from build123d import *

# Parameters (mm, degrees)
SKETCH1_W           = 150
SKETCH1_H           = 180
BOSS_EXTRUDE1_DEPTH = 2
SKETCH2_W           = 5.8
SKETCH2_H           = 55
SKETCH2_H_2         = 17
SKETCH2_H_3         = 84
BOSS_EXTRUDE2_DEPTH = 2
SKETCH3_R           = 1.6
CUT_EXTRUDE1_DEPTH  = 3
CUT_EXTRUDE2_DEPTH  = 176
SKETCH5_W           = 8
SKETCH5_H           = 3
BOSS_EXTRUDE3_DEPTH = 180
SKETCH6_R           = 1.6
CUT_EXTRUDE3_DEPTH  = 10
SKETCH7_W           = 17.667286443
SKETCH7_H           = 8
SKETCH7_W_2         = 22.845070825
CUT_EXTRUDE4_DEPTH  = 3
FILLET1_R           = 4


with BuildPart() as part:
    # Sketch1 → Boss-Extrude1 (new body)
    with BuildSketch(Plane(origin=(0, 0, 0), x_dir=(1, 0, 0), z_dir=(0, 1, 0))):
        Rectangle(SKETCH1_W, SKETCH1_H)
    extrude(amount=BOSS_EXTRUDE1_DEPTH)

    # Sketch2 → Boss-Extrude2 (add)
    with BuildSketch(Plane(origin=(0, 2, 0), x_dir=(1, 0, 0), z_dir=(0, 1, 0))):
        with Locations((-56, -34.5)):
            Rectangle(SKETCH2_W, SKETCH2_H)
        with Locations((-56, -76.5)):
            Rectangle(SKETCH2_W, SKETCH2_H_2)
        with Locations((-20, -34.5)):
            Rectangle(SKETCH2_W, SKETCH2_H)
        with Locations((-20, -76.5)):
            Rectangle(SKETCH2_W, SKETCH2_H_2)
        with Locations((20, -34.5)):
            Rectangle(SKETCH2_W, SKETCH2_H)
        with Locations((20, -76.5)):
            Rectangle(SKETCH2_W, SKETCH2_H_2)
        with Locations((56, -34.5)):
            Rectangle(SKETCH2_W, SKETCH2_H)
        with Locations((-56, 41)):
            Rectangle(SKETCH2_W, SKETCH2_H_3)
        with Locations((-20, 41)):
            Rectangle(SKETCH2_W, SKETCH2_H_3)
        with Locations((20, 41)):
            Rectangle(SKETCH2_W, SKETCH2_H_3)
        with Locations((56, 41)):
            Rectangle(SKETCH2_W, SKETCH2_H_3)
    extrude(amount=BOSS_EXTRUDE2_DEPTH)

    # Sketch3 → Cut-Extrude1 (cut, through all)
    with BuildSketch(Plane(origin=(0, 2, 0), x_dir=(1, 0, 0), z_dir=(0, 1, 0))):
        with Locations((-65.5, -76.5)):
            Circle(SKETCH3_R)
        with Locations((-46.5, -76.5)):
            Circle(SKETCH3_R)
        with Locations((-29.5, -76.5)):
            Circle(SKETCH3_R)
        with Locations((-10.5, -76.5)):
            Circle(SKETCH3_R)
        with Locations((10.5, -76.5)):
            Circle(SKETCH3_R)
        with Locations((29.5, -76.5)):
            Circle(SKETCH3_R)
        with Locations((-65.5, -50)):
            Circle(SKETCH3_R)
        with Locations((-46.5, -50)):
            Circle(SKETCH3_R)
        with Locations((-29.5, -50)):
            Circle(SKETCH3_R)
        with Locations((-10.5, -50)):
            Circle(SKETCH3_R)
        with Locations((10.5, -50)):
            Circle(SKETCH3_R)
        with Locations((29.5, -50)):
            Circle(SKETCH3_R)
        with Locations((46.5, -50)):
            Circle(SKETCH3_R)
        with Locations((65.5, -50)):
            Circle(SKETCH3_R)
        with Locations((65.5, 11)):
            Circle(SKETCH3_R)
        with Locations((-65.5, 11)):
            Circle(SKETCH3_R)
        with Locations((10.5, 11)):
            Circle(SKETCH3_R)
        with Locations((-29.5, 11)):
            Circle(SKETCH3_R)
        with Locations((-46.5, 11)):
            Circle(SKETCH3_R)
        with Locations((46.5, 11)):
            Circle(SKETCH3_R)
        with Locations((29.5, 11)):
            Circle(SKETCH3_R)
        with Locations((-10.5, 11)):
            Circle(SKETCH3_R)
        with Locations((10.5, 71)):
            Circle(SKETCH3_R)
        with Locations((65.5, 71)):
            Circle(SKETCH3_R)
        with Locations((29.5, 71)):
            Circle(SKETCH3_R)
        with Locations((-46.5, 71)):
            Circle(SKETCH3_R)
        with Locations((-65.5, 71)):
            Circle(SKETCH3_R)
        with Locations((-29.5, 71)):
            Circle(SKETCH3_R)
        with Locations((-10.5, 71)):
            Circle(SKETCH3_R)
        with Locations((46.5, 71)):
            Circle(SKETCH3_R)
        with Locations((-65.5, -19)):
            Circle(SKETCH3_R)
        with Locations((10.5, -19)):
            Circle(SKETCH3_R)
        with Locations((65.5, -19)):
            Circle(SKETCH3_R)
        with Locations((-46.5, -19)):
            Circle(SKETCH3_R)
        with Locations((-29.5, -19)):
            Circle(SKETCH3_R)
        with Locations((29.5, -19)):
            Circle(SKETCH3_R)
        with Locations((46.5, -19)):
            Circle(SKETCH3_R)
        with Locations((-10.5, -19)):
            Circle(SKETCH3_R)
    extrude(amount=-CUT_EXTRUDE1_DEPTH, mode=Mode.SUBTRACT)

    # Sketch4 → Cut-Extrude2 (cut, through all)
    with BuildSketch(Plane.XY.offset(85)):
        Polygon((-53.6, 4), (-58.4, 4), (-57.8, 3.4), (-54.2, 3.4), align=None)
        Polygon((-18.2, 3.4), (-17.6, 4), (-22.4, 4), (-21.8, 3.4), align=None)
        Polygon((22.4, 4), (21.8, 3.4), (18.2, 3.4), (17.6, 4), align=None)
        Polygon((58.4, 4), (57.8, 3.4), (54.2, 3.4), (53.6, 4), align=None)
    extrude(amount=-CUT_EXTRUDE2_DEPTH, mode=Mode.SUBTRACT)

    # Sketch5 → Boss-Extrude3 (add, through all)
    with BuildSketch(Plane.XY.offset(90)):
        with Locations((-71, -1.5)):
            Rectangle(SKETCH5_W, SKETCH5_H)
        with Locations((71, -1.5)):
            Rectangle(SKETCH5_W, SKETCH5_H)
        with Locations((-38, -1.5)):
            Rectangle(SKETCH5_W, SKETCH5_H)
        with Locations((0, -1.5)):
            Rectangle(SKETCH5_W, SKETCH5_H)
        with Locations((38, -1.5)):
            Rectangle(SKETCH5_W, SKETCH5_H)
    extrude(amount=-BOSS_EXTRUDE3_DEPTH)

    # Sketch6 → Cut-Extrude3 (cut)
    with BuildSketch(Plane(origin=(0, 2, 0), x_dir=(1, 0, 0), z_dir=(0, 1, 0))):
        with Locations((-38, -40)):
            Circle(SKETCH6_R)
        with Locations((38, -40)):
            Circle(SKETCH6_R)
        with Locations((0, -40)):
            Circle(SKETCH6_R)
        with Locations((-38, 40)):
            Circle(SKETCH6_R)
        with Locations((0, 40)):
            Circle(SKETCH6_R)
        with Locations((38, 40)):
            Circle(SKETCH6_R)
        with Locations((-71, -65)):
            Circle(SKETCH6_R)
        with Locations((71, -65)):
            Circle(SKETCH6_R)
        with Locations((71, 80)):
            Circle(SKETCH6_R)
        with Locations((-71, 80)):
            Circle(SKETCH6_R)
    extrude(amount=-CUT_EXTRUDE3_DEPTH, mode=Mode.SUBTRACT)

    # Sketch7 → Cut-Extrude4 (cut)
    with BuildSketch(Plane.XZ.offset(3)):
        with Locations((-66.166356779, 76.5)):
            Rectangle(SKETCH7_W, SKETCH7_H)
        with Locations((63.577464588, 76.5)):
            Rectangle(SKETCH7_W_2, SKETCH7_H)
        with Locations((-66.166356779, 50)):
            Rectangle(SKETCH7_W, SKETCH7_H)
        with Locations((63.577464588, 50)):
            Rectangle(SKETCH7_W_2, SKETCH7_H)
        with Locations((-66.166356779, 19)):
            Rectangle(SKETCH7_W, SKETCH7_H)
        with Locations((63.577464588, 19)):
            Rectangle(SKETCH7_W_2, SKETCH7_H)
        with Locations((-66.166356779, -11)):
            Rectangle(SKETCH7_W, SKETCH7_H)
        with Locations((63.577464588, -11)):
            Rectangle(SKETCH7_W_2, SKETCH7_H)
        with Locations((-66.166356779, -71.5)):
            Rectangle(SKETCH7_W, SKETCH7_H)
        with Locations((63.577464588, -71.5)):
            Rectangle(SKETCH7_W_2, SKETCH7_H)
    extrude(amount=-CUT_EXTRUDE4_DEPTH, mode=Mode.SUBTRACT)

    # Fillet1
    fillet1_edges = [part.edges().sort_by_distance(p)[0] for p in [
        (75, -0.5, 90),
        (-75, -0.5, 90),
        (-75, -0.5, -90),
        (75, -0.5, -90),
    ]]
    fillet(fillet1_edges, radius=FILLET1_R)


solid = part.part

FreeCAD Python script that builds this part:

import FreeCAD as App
import Part
import Sketcher

V = App.Vector


def edges_at(feature, points):
    """Names of the edges that pass closest to the given points."""
    edges = feature.Shape.Edges
    near = lambda p: min(range(len(edges)), key=lambda i: edges[i].distToShape(Part.Vertex(*p))[0])
    return sorted({f"Edge{near(p) + 1}" for p in points})

doc = App.newDocument("Part")
body = doc.addObject("PartDesign::Body", "Body")

sketch1 = doc.addObject("Sketcher::SketchObject", "Sketch")
body.addObject(sketch1)
sketch1.AttachmentSupport = (doc.XZ_Plane, [""])
sketch1.MapMode = "FlatFace"
sketch1.addGeometry([
    Part.LineSegment(V(-75, -90, 0), V(-75, 90, 0)),
    Part.LineSegment(V(-75, 90, 0), V(75, 90, 0)),
    Part.LineSegment(V(75, 90, 0), V(75, -90, 0)),
    Part.LineSegment(V(75, -90, 0), V(-75, -90, 0)),
], False)
sketch1.addConstraint([
    Sketcher.Constraint("Coincident", 0, 2, 1, 1),
    Sketcher.Constraint("Coincident", 1, 2, 2, 1),
    Sketcher.Constraint("Coincident", 2, 2, 3, 1),
    Sketcher.Constraint("Coincident", 3, 2, 0, 1),
    Sketcher.Constraint("Vertical", 0),
    Sketcher.Constraint("Horizontal", 1),
    Sketcher.Constraint("Vertical", 2),
    Sketcher.Constraint("Horizontal", 3),
    Sketcher.Constraint("Symmetric", 0, 2, 2, 2, -1, 1),
    Sketcher.Constraint("DistanceX", 1, 1, 1, 2, 150.0),
    Sketcher.Constraint("DistanceY", 0, 1, 0, 2, 180.0),
])
pad1 = doc.addObject("PartDesign::Pad", "Pad")
body.addObject(pad1)
pad1.Profile = sketch1
pad1.Length = 2
pad1.Reversed = True

sketch2 = doc.addObject("Sketcher::SketchObject", "Sketch001")
body.addObject(sketch2)
sketch2.AttachmentSupport = (doc.XZ_Plane, [""])
sketch2.MapMode = "FlatFace"
sketch2.AttachmentOffset = App.Placement(V(0, 0, -2), App.Rotation())
sketch2.addGeometry([
    Part.LineSegment(V(-59, 7, 0), V(-59, 62, 0)),
    Part.LineSegment(V(-59, 62, 0), V(-53, 62, 0)),
    Part.LineSegment(V(-53, 62, 0), V(-53, 7, 0)),
    Part.LineSegment(V(-53, 7, 0), V(-59, 7, 0)),
    Part.LineSegment(V(-59, 68, 0), V(-59, 85, 0)),
    Part.LineSegment(V(-59, 85, 0), V(-53, 85, 0)),
    Part.LineSegment(V(-53, 85, 0), V(-53, 68, 0)),
    Part.LineSegment(V(-53, 68, 0), V(-59, 68, 0)),
    Part.LineSegment(V(-23, 7, 0), V(-23, 62, 0)),
    Part.LineSegment(V(-23, 62, 0), V(-17, 62, 0)),
    Part.LineSegment(V(-17, 62, 0), V(-17, 7, 0)),
    Part.LineSegment(V(-17, 7, 0), V(-23, 7, 0)),
    Part.LineSegment(V(-23, 68, 0), V(-23, 85, 0)),
    Part.LineSegment(V(-23, 85, 0), V(-17, 85, 0)),
    Part.LineSegment(V(-17, 85, 0), V(-17, 68, 0)),
    Part.LineSegment(V(-17, 68, 0), V(-23, 68, 0)),
    Part.LineSegment(V(17, 7, 0), V(17, 62, 0)),
    Part.LineSegment(V(17, 62, 0), V(23, 62, 0)),
    Part.LineSegment(V(23, 62, 0), V(23, 7, 0)),
    Part.LineSegment(V(23, 7, 0), V(17, 7, 0)),
    Part.LineSegment(V(17, 68, 0), V(17, 85, 0)),
    Part.LineSegment(V(17, 85, 0), V(23, 85, 0)),
    Part.LineSegment(V(23, 85, 0), V(23, 68, 0)),
    Part.LineSegment(V(23, 68, 0), V(17, 68, 0)),
    Part.LineSegment(V(53, 7, 0), V(53, 62, 0)),
    Part.LineSegment(V(53, 62, 0), V(59, 62, 0)),
    Part.LineSegment(V(59, 62, 0), V(59, 7, 0)),
    Part.LineSegment(V(59, 7, 0), V(53, 7, 0)),
    Part.LineSegment(V(-59, -83, 0), V(-59, 1, 0)),
    Part.LineSegment(V(-59, 1, 0), V(-53, 1, 0)),
    Part.LineSegment(V(-53, 1, 0), V(-53, -83, 0)),
    Part.LineSegment(V(-53, -83, 0), V(-59, -83, 0)),
    Part.LineSegment(V(-23, -83, 0), V(-23, 1, 0)),
    Part.LineSegment(V(-23, 1, 0), V(-17, 1, 0)),
    Part.LineSegment(V(-17, 1, 0), V(-17, -83, 0)),
    Part.LineSegment(V(-17, -83, 0), V(-23, -83, 0)),
    Part.LineSegment(V(17, -83, 0), V(17, 1, 0)),
    Part.LineSegment(V(17, 1, 0), V(23, 1, 0)),
    Part.LineSegment(V(23, 1, 0), V(23, -83, 0)),
    Part.LineSegment(V(23, -83, 0), V(17, -83, 0)),
    Part.LineSegment(V(53, -83, 0), V(53, 1, 0)),
    Part.LineSegment(V(53, 1, 0), V(59, 1, 0)),
    Part.LineSegment(V(59, 1, 0), V(59, -83, 0)),
    Part.LineSegment(V(59, -83, 0), V(53, -83, 0)),
], False)
sketch2.addConstraint([
    Sketcher.Constraint("Coincident", 0, 2, 1, 1),
    Sketcher.Constraint("Coincident", 1, 2, 2, 1),
    Sketcher.Constraint("Coincident", 2, 2, 3, 1),
    Sketcher.Constraint("Coincident", 3, 2, 0, 1),
    Sketcher.Constraint("Coincident", 4, 2, 5, 1),
    Sketcher.Constraint("Coincident", 5, 2, 6, 1),
    Sketcher.Constraint("Coincident", 6, 2, 7, 1),
    Sketcher.Constraint("Coincident", 7, 2, 4, 1),
    Sketcher.Constraint("Coincident", 8, 2, 9, 1),
    Sketcher.Constraint("Coincident", 9, 2, 10, 1),
    Sketcher.Constraint("Coincident", 10, 2, 11, 1),
    Sketcher.Constraint("Coincident", 11, 2, 8, 1),
    Sketcher.Constraint("Coincident", 12, 2, 13, 1),
    Sketcher.Constraint("Coincident", 13, 2, 14, 1),
    Sketcher.Constraint("Coincident", 14, 2, 15, 1),
    Sketcher.Constraint("Coincident", 15, 2, 12, 1),
    Sketcher.Constraint("Coincident", 16, 2, 17, 1),
    Sketcher.Constraint("Coincident", 17, 2, 18, 1),
    Sketcher.Constraint("Coincident", 18, 2, 19, 1),
    Sketcher.Constraint("Coincident", 19, 2, 16, 1),
    Sketcher.Constraint("Coincident", 20, 2, 21, 1),
    Sketcher.Constraint("Coincident", 21, 2, 22, 1),
    Sketcher.Constraint("Coincident", 22, 2, 23, 1),
    Sketcher.Constraint("Coincident", 23, 2, 20, 1),
    Sketcher.Constraint("Coincident", 24, 2, 25, 1),
    Sketcher.Constraint("Coincident", 25, 2, 26, 1),
    Sketcher.Constraint("Coincident", 26, 2, 27, 1),
    Sketcher.Constraint("Coincident", 27, 2, 24, 1),
    Sketcher.Constraint("Coincident", 28, 2, 29, 1),
    Sketcher.Constraint("Coincident", 29, 2, 30, 1),
    Sketcher.Constraint("Coincident", 30, 2, 31, 1),
    Sketcher.Constraint("Coincident", 31, 2, 28, 1),
    Sketcher.Constraint("Coincident", 32, 2, 33, 1),
    Sketcher.Constraint("Coincident", 33, 2, 34, 1),
    Sketcher.Constraint("Coincident", 34, 2, 35, 1),
    Sketcher.Constraint("Coincident", 35, 2, 32, 1),
    Sketcher.Constraint("Coincident", 36, 2, 37, 1),
    Sketcher.Constraint("Coincident", 37, 2, 38, 1),
    Sketcher.Constraint("Coincident", 38, 2, 39, 1),
    Sketcher.Constraint("Coincident", 39, 2, 36, 1),
    Sketcher.Constraint("Coincident", 40, 2, 41, 1),
    Sketcher.Constraint("Coincident", 41, 2, 42, 1),
    Sketcher.Constraint("Coincident", 42, 2, 43, 1),
    Sketcher.Constraint("Coincident", 43, 2, 40, 1),
    Sketcher.Constraint("Vertical", 0),
    Sketcher.Constraint("Horizontal", 1),
    Sketcher.Constraint("Vertical", 2),
    Sketcher.Constraint("Horizontal", 3),
    Sketcher.Constraint("Vertical", 4),
    Sketcher.Constraint("Horizontal", 5),
    Sketcher.Constraint("Vertical", 6),
    Sketcher.Constraint("Horizontal", 7),
    Sketcher.Constraint("Vertical", 8),
    Sketcher.Constraint("Horizontal", 9),
    Sketcher.Constraint("Vertical", 10),
    Sketcher.Constraint("Horizontal", 11),
    Sketcher.Constraint("Vertical", 12),
    Sketcher.Constraint("Horizontal", 13),
    Sketcher.Constraint("Vertical", 14),
    Sketcher.Constraint("Horizontal", 15),
    Sketcher.Constraint("Vertical", 16),
    Sketcher.Constraint("Horizontal", 17),
    Sketcher.Constraint("Vertical", 18),
    Sketcher.Constraint("Horizontal", 19),
    Sketcher.Constraint("Vertical", 20),
    Sketcher.Constraint("Horizontal", 21),
    Sketcher.Constraint("Vertical", 22),
    Sketcher.Constraint("Horizontal", 23),
    Sketcher.Constraint("Vertical", 24),
    Sketcher.Constraint("Horizontal", 25),
    Sketcher.Constraint("Vertical", 26),
    Sketcher.Constraint("Horizontal", 27),
    Sketcher.Constraint("Vertical", 28),
    Sketcher.Constraint("Horizontal", 29),
    Sketcher.Constraint("Vertical", 30),
    Sketcher.Constraint("Horizontal", 31),
    Sketcher.Constraint("Vertical", 32),
    Sketcher.Constraint("Horizontal", 33),
    Sketcher.Constraint("Vertical", 34),
    Sketcher.Constraint("Horizontal", 35),
    Sketcher.Constraint("Vertical", 36),
    Sketcher.Constraint("Horizontal", 37),
    Sketcher.Constraint("Vertical", 38),
    Sketcher.Constraint("Horizontal", 39),
    Sketcher.Constraint("Vertical", 40),
    Sketcher.Constraint("Horizontal", 41),
    Sketcher.Constraint("Vertical", 42),
    Sketcher.Constraint("Horizontal", 43),
    Sketcher.Constraint("Symmetric", 9, 2, 16, 2, -2),
    Sketcher.Constraint("Symmetric", 11, 2, 18, 2, -2),
    Sketcher.Constraint("Symmetric", 13, 2, 20, 2, -2),
    Sketcher.Constraint("Symmetric", 15, 2, 22, 2, -2),
    Sketcher.Constraint("Symmetric", 1, 2, 24, 2, -2),
    Sketcher.Constraint("Symmetric", 3, 2, 26, 2, -2),
    Sketcher.Constraint("Symmetric", 33, 2, 36, 2, -2),
    Sketcher.Constraint("Symmetric", 35, 2, 38, 2, -2),
    Sketcher.Constraint("Symmetric", 29, 2, 40, 2, -2),
    Sketcher.Constraint("Symmetric", 31, 2, 42, 2, -2),
    Sketcher.Constraint("Horizontal", 1, 2, 8, 2),
    Sketcher.Constraint("Horizontal", 3, 2, 10, 2),
    Sketcher.Constraint("Horizontal", 5, 2, 12, 2),
    Sketcher.Constraint("Horizontal", 7, 2, 14, 2),
    Sketcher.Constraint("Horizontal", 29, 2, 32, 2),
    Sketcher.Constraint("Horizontal", 31, 2, 34, 2),
    Sketcher.Constraint("Vertical", 3, 2, 4, 2),
    Sketcher.Constraint("Vertical", 2, 2, 5, 2),
    Sketcher.Constraint("Vertical", 11, 2, 12, 2),
    Sketcher.Constraint("Vertical", 10, 2, 13, 2),
    Sketcher.Constraint("Vertical", 7, 2, 28, 2),
    Sketcher.Constraint("Vertical", 6, 2, 29, 2),
    Sketcher.Constraint("Vertical", 15, 2, 32, 2),
    Sketcher.Constraint("Vertical", 14, 2, 33, 2),
    Sketcher.Constraint("Equal", 7, 9),
    Sketcher.Constraint("DistanceY", 0, 1, 0, 2, 55.0),
    Sketcher.Constraint("DistanceY", 4, 1, 4, 2, 17.0),
    Sketcher.Constraint("DistanceY", 28, 1, 28, 2, 84.0),
    Sketcher.Constraint("DistanceX", 1, 1, 1, 2, 5.8),
    Sketcher.Constraint("DistanceY", -1, 1, 0, 2, 62.0),
    Sketcher.Constraint("DistanceY", -1, 1, 4, 2, 85.0),
    Sketcher.Constraint("DistanceY", -1, 1, 28, 2, 1.0),
    Sketcher.Constraint("DistanceX", 0, 2, 8, 2, 36.0),
    Sketcher.Constraint("DistanceX", 8, 2, 16, 2, 40.0),
])
pad2 = doc.addObject("PartDesign::Pad", "Pad001")
body.addObject(pad2)
pad2.Profile = sketch2
pad2.Length = 2
pad2.Reversed = True

sketch3 = doc.addObject("Sketcher::SketchObject", "Sketch002")
body.addObject(sketch3)
sketch3.AttachmentSupport = (doc.XZ_Plane, [""])
sketch3.MapMode = "FlatFace"
sketch3.AttachmentOffset = App.Placement(V(0, 0, -2), App.Rotation())
sketch3.addGeometry([
    Part.Circle(V(-65.5, 76.5, 0), V(0, 0, 1), 1.6),
    Part.Circle(V(-46.5, 76.5, 0), V(0, 0, 1), 1.6),
    Part.Circle(V(-29.5, 76.5, 0), V(0, 0, 1), 1.6),
    Part.Circle(V(-10.5, 76.5, 0), V(0, 0, 1), 1.6),
    Part.Circle(V(10.5, 76.5, 0), V(0, 0, 1), 1.6),
    Part.Circle(V(29.5, 76.5, 0), V(0, 0, 1), 1.6),
    Part.Circle(V(-65.5, 50, 0), V(0, 0, 1), 1.6),
    Part.Circle(V(-46.5, 50, 0), V(0, 0, 1), 1.6),
    Part.Circle(V(-29.5, 50, 0), V(0, 0, 1), 1.6),
    Part.Circle(V(-10.5, 50, 0), V(0, 0, 1), 1.6),
    Part.Circle(V(10.5, 50, 0), V(0, 0, 1), 1.6),
    Part.Circle(V(29.5, 50, 0), V(0, 0, 1), 1.6),
    Part.Circle(V(46.5, 50, 0), V(0, 0, 1), 1.6),
    Part.Circle(V(65.5, 50, 0), V(0, 0, 1), 1.6),
    Part.Circle(V(65.5, -11, 0), V(0, 0, 1), 1.6),
    Part.Circle(V(-65.5, -11, 0), V(0, 0, 1), 1.6),
    Part.Circle(V(10.5, -11, 0), V(0, 0, 1), 1.6),
    Part.Circle(V(-29.5, -11, 0), V(0, 0, 1), 1.6),
    Part.Circle(V(-46.5, -11, 0), V(0, 0, 1), 1.6),
    Part.Circle(V(46.5, -11, 0), V(0, 0, 1), 1.6),
    Part.Circle(V(29.5, -11, 0), V(0, 0, 1), 1.6),
    Part.Circle(V(-10.5, -11, 0), V(0, 0, 1), 1.6),
    Part.Circle(V(10.5, -71, 0), V(0, 0, 1), 1.6),
    Part.Circle(V(65.5, -71, 0), V(0, 0, 1), 1.6),
    Part.Circle(V(29.5, -71, 0), V(0, 0, 1), 1.6),
    Part.Circle(V(-46.5, -71, 0), V(0, 0, 1), 1.6),
    Part.Circle(V(-65.5, -71, 0), V(0, 0, 1), 1.6),
    Part.Circle(V(-29.5, -71, 0), V(0, 0, 1), 1.6),
    Part.Circle(V(-10.5, -71, 0), V(0, 0, 1), 1.6),
    Part.Circle(V(46.5, -71, 0), V(0, 0, 1), 1.6),
    Part.Circle(V(-65.5, 19, 0), V(0, 0, 1), 1.6),
    Part.Circle(V(10.5, 19, 0), V(0, 0, 1), 1.6),
    Part.Circle(V(65.5, 19, 0), V(0, 0, 1), 1.6),
    Part.Circle(V(-46.5, 19, 0), V(0, 0, 1), 1.6),
    Part.Circle(V(-29.5, 19, 0), V(0, 0, 1), 1.6),
    Part.Circle(V(29.5, 19, 0), V(0, 0, 1), 1.6),
    Part.Circle(V(46.5, 19, 0), V(0, 0, 1), 1.6),
    Part.Circle(V(-10.5, 19, 0), V(0, 0, 1), 1.6),
], False)
sketch3.addConstraint([
    Sketcher.Constraint("Equal", 0, 1),
    Sketcher.Constraint("Equal", 1, 2),
    Sketcher.Constraint("Equal", 2, 3),
    Sketcher.Constraint("Equal", 3, 4),
    Sketcher.Constraint("Equal", 4, 5),
    Sketcher.Constraint("Equal", 5, 6),
    Sketcher.Constraint("Equal", 6, 7),
    Sketcher.Constraint("Equal", 7, 8),
    Sketcher.Constraint("Equal", 8, 9),
    Sketcher.Constraint("Equal", 9, 10),
    Sketcher.Constraint("Equal", 10, 11),
    Sketcher.Constraint("Equal", 11, 12),
    Sketcher.Constraint("Equal", 12, 13),
    Sketcher.Constraint("Equal", 13, 14),
    Sketcher.Constraint("Equal", 14, 15),
    Sketcher.Constraint("Equal", 15, 16),
    Sketcher.Constraint("Equal", 16, 17),
    Sketcher.Constraint("Equal", 17, 18),
    Sketcher.Constraint("Equal", 18, 19),
    Sketcher.Constraint("Equal", 19, 20),
    Sketcher.Constraint("Equal", 20, 21),
    Sketcher.Constraint("Equal", 21, 22),
    Sketcher.Constraint("Equal", 22, 23),
    Sketcher.Constraint("Equal", 23, 24),
    Sketcher.Constraint("Equal", 24, 25),
    Sketcher.Constraint("Equal", 25, 26),
    Sketcher.Constraint("Equal", 26, 27),
    Sketcher.Constraint("Equal", 27, 28),
    Sketcher.Constraint("Equal", 28, 29),
    Sketcher.Constraint("Equal", 29, 30),
    Sketcher.Constraint("Equal", 30, 31),
    Sketcher.Constraint("Equal", 31, 32),
    Sketcher.Constraint("Equal", 32, 33),
    Sketcher.Constraint("Equal", 33, 34),
    Sketcher.Constraint("Equal", 34, 35),
    Sketcher.Constraint("Equal", 35, 36),
    Sketcher.Constraint("Equal", 36, 37),
    Sketcher.Constraint("Symmetric", 3, 3, 4, 3, -2),
    Sketcher.Constraint("Symmetric", 2, 3, 5, 3, -2),
    Sketcher.Constraint("Symmetric", 9, 3, 10, 3, -2),
    Sketcher.Constraint("Symmetric", 8, 3, 11, 3, -2),
    Sketcher.Constraint("Symmetric", 7, 3, 12, 3, -2),
    Sketcher.Constraint("Symmetric", 6, 3, 13, 3, -2),
    Sketcher.Constraint("Symmetric", 14, 3, 15, 3, -2),
    Sketcher.Constraint("Symmetric", 18, 3, 19, 3, -2),
    Sketcher.Constraint("Symmetric", 17, 3, 20, 3, -2),
    Sketcher.Constraint("Symmetric", 16, 3, 21, 3, -2),
    Sketcher.Constraint("Symmetric", 23, 3, 26, 3, -2),
    Sketcher.Constraint("Symmetric", 24, 3, 27, 3, -2),
    Sketcher.Constraint("Symmetric", 22, 3, 28, 3, -2),
    Sketcher.Constraint("Symmetric", 25, 3, 29, 3, -2),
    Sketcher.Constraint("Symmetric", 30, 3, 32, 3, -2),
    Sketcher.Constraint("Symmetric", 34, 3, 35, 3, -2),
    Sketcher.Constraint("Symmetric", 33, 3, 36, 3, -2),
    Sketcher.Constraint("Symmetric", 31, 3, 37, 3, -2),
    Sketcher.Constraint("Horizontal", 0, 3, 1, 3),
    Sketcher.Constraint("Horizontal", 1, 3, 2, 3),
    Sketcher.Constraint("Horizontal", 2, 3, 3, 3),
    Sketcher.Constraint("Horizontal", 6, 3, 7, 3),
    Sketcher.Constraint("Horizontal", 7, 3, 8, 3),
    Sketcher.Constraint("Horizontal", 8, 3, 9, 3),
    Sketcher.Constraint("Horizontal", 15, 3, 16, 3),
    Sketcher.Constraint("Horizontal", 16, 3, 17, 3),
    Sketcher.Constraint("Horizontal", 17, 3, 18, 3),
    Sketcher.Constraint("Horizontal", 22, 3, 23, 3),
    Sketcher.Constraint("Horizontal", 23, 3, 24, 3),
    Sketcher.Constraint("Horizontal", 24, 3, 25, 3),
    Sketcher.Constraint("Horizontal", 30, 3, 31, 3),
    Sketcher.Constraint("Horizontal", 32, 3, 33, 3),
    Sketcher.Constraint("Horizontal", 33, 3, 34, 3),
    Sketcher.Constraint("Vertical", 0, 3, 6, 3),
    Sketcher.Constraint("Vertical", 1, 3, 7, 3),
    Sketcher.Constraint("Vertical", 2, 3, 8, 3),
    Sketcher.Constraint("Vertical", 3, 3, 9, 3),
    Sketcher.Constraint("Vertical", 13, 3, 14, 3),
    Sketcher.Constraint("Vertical", 10, 3, 16, 3),
    Sketcher.Constraint("Vertical", 8, 3, 17, 3),
    Sketcher.Constraint("Vertical", 7, 3, 18, 3),
    Sketcher.Constraint("Vertical", 16, 3, 22, 3),
    Sketcher.Constraint("Vertical", 14, 3, 23, 3),
    Sketcher.Constraint("Vertical", 20, 3, 24, 3),
    Sketcher.Constraint("Vertical", 18, 3, 25, 3),
    Sketcher.Constraint("Vertical", 26, 3, 30, 3),
    Sketcher.Constraint("Vertical", 22, 3, 31, 3),
    Sketcher.Constraint("Vertical", 25, 3, 33, 3),
    Sketcher.Constraint("Vertical", 27, 3, 34, 3),
    Sketcher.Constraint("Diameter", 0, 3.2),
    Sketcher.Constraint("DistanceY", -1, 1, 6, 3, 50.0),
    Sketcher.Constraint("DistanceY", 14, 3, -1, 1, 11.0),
    Sketcher.Constraint("DistanceY", 22, 3, -1, 1, 71.0),
    Sketcher.Constraint("DistanceY", -1, 1, 30, 3, 19.0),
    Sketcher.Constraint("DistanceX", 0, 3, 1, 3, 19.0),
    Sketcher.Constraint("DistanceX", 1, 3, 2, 3, 17.0),
    Sketcher.Constraint("DistanceX", 2, 3, 3, 3, 19.0),
    Sketcher.Constraint("DistanceX", 3, 3, 4, 3, 21.0),
    Sketcher.Constraint("DistanceY", -1, 1, 0, 3, 76.5),
])
pocket1 = doc.addObject("PartDesign::Pocket", "Pocket")
body.addObject(pocket1)
pocket1.Profile = sketch3
pocket1.Type = "ThroughAll"
pocket1.Reversed = True

sketch4 = doc.addObject("Sketcher::SketchObject", "Sketch003")
body.addObject(sketch4)
sketch4.AttachmentSupport = (doc.XY_Plane, [""])
sketch4.MapMode = "FlatFace"
sketch4.AttachmentOffset = App.Placement(V(0, 0, 85), App.Rotation())
sketch4.addGeometry([
    Part.LineSegment(V(-53.6, 4, 0), V(-58.4, 4, 0)),
    Part.LineSegment(V(-58.4, 4, 0), V(-57.8, 3.4, 0)),
    Part.LineSegment(V(-57.8, 3.4, 0), V(-54.2, 3.4, 0)),
    Part.LineSegment(V(-54.2, 3.4, 0), V(-53.6, 4, 0)),
    Part.LineSegment(V(-18.2, 3.4, 0), V(-17.6, 4, 0)),
    Part.LineSegment(V(-17.6, 4, 0), V(-22.4, 4, 0)),
    Part.LineSegment(V(-22.4, 4, 0), V(-21.8, 3.4, 0)),
    Part.LineSegment(V(-21.8, 3.4, 0), V(-18.2, 3.4, 0)),
    Part.LineSegment(V(21.8, 3.4, 0), V(22.4, 4, 0)),
    Part.LineSegment(V(22.4, 4, 0), V(17.6, 4, 0)),
    Part.LineSegment(V(17.6, 4, 0), V(18.2, 3.4, 0)),
    Part.LineSegment(V(18.2, 3.4, 0), V(21.8, 3.4, 0)),
    Part.LineSegment(V(57.8, 3.4, 0), V(58.4, 4, 0)),
    Part.LineSegment(V(58.4, 4, 0), V(53.6, 4, 0)),
    Part.LineSegment(V(53.6, 4, 0), V(54.2, 3.4, 0)),
    Part.LineSegment(V(54.2, 3.4, 0), V(57.8, 3.4, 0)),
], False)
sketch4.addConstraint([
    Sketcher.Constraint("Coincident", 0, 2, 1, 1),
    Sketcher.Constraint("Coincident", 1, 2, 2, 1),
    Sketcher.Constraint("Coincident", 2, 2, 3, 1),
    Sketcher.Constraint("Coincident", 3, 2, 0, 1),
    Sketcher.Constraint("Coincident", 4, 2, 5, 1),
    Sketcher.Constraint("Coincident", 5, 2, 6, 1),
    Sketcher.Constraint("Coincident", 6, 2, 7, 1),
    Sketcher.Constraint("Coincident", 7, 2, 4, 1),
    Sketcher.Constraint("Coincident", 8, 2, 9, 1),
    Sketcher.Constraint("Coincident", 9, 2, 10, 1),
    Sketcher.Constraint("Coincident", 10, 2, 11, 1),
    Sketcher.Constraint("Coincident", 11, 2, 8, 1),
    Sketcher.Constraint("Coincident", 12, 2, 13, 1),
    Sketcher.Constraint("Coincident", 13, 2, 14, 1),
    Sketcher.Constraint("Coincident", 14, 2, 15, 1),
    Sketcher.Constraint("Coincident", 15, 2, 12, 1),
    Sketcher.Constraint("Horizontal", 0),
    Sketcher.Constraint("Horizontal", 2),
    Sketcher.Constraint("Horizontal", 5),
    Sketcher.Constraint("Horizontal", 7),
    Sketcher.Constraint("Horizontal", 9),
    Sketcher.Constraint("Horizontal", 11),
    Sketcher.Constraint("Horizontal", 13),
    Sketcher.Constraint("Horizontal", 15),
    Sketcher.Constraint("Symmetric", 5, 2, 8, 2, -2),
    Sketcher.Constraint("Symmetric", 7, 2, 10, 2, -2),
    Sketcher.Constraint("Symmetric", 0, 2, 12, 2, -2),
    Sketcher.Constraint("Symmetric", 2, 2, 14, 2, -2),
    Sketcher.Constraint("Perpendicular", 1, 3),
    Sketcher.Constraint("Parallel", 3, 4),
    Sketcher.Constraint("Perpendicular", 4, 6),
    Sketcher.Constraint("Perpendicular", 6, 8),
    Sketcher.Constraint("Perpendicular", 8, 10),
    Sketcher.Constraint("Perpendicular", 10, 12),
    Sketcher.Constraint("Perpendicular", 12, 14),
    Sketcher.Constraint("Horizontal", 3, 2, 4, 2),
    Sketcher.Constraint("Horizontal", 2, 2, 6, 2),
    Sketcher.Constraint("Equal", 0, 5),
    Sketcher.Constraint("Equal", 5, 9),
    Sketcher.Constraint("DistanceX", 0, 2, 0, 1, 4.8),
    Sketcher.Constraint("DistanceX", 2, 1, 2, 2, 3.6),
    Sketcher.Constraint("DistanceY", -1, 1, 0, 2, 4.0),
    Sketcher.Constraint("DistanceX", 3, 2, 4, 2, 36.0),
    Sketcher.Constraint("DistanceX", 4, 2, 8, 2, 40.0),
])
pocket2 = doc.addObject("PartDesign::Pocket", "Pocket001")
body.addObject(pocket2)
pocket2.Profile = sketch4
pocket2.Type = "ThroughAll"

sketch5 = doc.addObject("Sketcher::SketchObject", "Sketch004")
body.addObject(sketch5)
sketch5.AttachmentSupport = (doc.XY_Plane, [""])
sketch5.MapMode = "FlatFace"
sketch5.AttachmentOffset = App.Placement(V(0, 0, 90), App.Rotation())
sketch5.addGeometry([
    Part.LineSegment(V(-75, 0, 0), V(-75, -3, 0)),
    Part.LineSegment(V(-75, -3, 0), V(-67, -3, 0)),
    Part.LineSegment(V(-67, -3, 0), V(-67, 0, 0)),
    Part.LineSegment(V(-67, 0, 0), V(-75, 0, 0)),
    Part.LineSegment(V(67, 0, 0), V(67, -3, 0)),
    Part.LineSegment(V(67, -3, 0), V(75, -3, 0)),
    Part.LineSegment(V(75, -3, 0), V(75, 0, 0)),
    Part.LineSegment(V(75, 0, 0), V(67, 0, 0)),
    Part.LineSegment(V(-42, 0, 0), V(-42, -3, 0)),
    Part.LineSegment(V(-42, -3, 0), V(-34, -3, 0)),
    Part.LineSegment(V(-34, -3, 0), V(-34, 0, 0)),
    Part.LineSegment(V(-34, 0, 0), V(-42, 0, 0)),
    Part.LineSegment(V(-4, 0, 0), V(-4, -3, 0)),
    Part.LineSegment(V(-4, -3, 0), V(4, -3, 0)),
    Part.LineSegment(V(4, -3, 0), V(4, 0, 0)),
    Part.LineSegment(V(4, 0, 0), V(-4, 0, 0)),
    Part.LineSegment(V(34, 0, 0), V(34, -3, 0)),
    Part.LineSegment(V(34, -3, 0), V(42, -3, 0)),
    Part.LineSegment(V(42, -3, 0), V(42, 0, 0)),
    Part.LineSegment(V(42, 0, 0), V(34, 0, 0)),
], False)
sketch5.addConstraint([
    Sketcher.Constraint("Coincident", 0, 2, 1, 1),
    Sketcher.Constraint("Coincident", 1, 2, 2, 1),
    Sketcher.Constraint("Coincident", 2, 2, 3, 1),
    Sketcher.Constraint("Coincident", 3, 2, 0, 1),
    Sketcher.Constraint("Coincident", 4, 2, 5, 1),
    Sketcher.Constraint("Coincident", 5, 2, 6, 1),
    Sketcher.Constraint("Coincident", 6, 2, 7, 1),
    Sketcher.Constraint("Coincident", 7, 2, 4, 1),
    Sketcher.Constraint("Coincident", 8, 2, 9, 1),
    Sketcher.Constraint("Coincident", 9, 2, 10, 1),
    Sketcher.Constraint("Coincident", 10, 2, 11, 1),
    Sketcher.Constraint("Coincident", 11, 2, 8, 1),
    Sketcher.Constraint("Coincident", 12, 2, 13, 1),
    Sketcher.Constraint("Coincident", 13, 2, 14, 1),
    Sketcher.Constraint("Coincident", 14, 2, 15, 1),
    Sketcher.Constraint("Coincident", 15, 2, 12, 1),
    Sketcher.Constraint("Coincident", 16, 2, 17, 1),
    Sketcher.Constraint("Coincident", 17, 2, 18, 1),
    Sketcher.Constraint("Coincident", 18, 2, 19, 1),
    Sketcher.Constraint("Coincident", 19, 2, 16, 1),
    Sketcher.Constraint("Vertical", 0),
    Sketcher.Constraint("Horizontal", 1),
    Sketcher.Constraint("Vertical", 2),
    Sketcher.Constraint("Horizontal", 3),
    Sketcher.Constraint("Vertical", 4),
    Sketcher.Constraint("Horizontal", 5),
    Sketcher.Constraint("Vertical", 6),
    Sketcher.Constraint("Horizontal", 7),
    Sketcher.Constraint("Vertical", 8),
    Sketcher.Constraint("Horizontal", 9),
    Sketcher.Constraint("Vertical", 10),
    Sketcher.Constraint("Horizontal", 11),
    Sketcher.Constraint("Vertical", 12),
    Sketcher.Constraint("Horizontal", 13),
    Sketcher.Constraint("Vertical", 14),
    Sketcher.Constraint("Horizontal", 15),
    Sketcher.Constraint("Vertical", 16),
    Sketcher.Constraint("Horizontal", 17),
    Sketcher.Constraint("Vertical", 18),
    Sketcher.Constraint("Horizontal", 19),
    Sketcher.Constraint("Symmetric", 3, 2, 6, 2, -1, 1),
    Sketcher.Constraint("Symmetric", 14, 2, 15, 2, -1, 1),
    Sketcher.Constraint("Symmetric", 11, 2, 18, 2, -1, 1),
    Sketcher.Constraint("Symmetric", 1, 2, 4, 2, -2),
    Sketcher.Constraint("Symmetric", 9, 2, 16, 2, -2),
    Sketcher.Constraint("PointOnObject", 2, 2, -1),
    Sketcher.Constraint("PointOnObject", 10, 2, -1),
    Sketcher.Constraint("Horizontal", 5, 2, 8, 2),
    Sketcher.Constraint("Horizontal", 9, 2, 12, 2),
    Sketcher.Constraint("Equal", 7, 9),
    Sketcher.Constraint("Equal", 11, 13),
    Sketcher.Constraint("DistanceX", 1, 1, 1, 2, 8.0),
    Sketcher.Constraint("DistanceY", 0, 2, 0, 1, 3.0),
    Sketcher.Constraint("DistanceX", 0, 2, -1, 1, 75.0),
    Sketcher.Constraint("DistanceX", 8, 2, -1, 1, 42.0),
])
pad3 = doc.addObject("PartDesign::Pad", "Pad002")
body.addObject(pad3)
pad3.Profile = sketch5
pad3.Length = 180
pad3.Reversed = True

sketch6 = doc.addObject("Sketcher::SketchObject", "Sketch005")
body.addObject(sketch6)
sketch6.AttachmentSupport = (doc.XZ_Plane, [""])
sketch6.MapMode = "FlatFace"
sketch6.AttachmentOffset = App.Placement(V(0, 0, -2), App.Rotation())
sketch6.addGeometry([
    Part.Circle(V(-38, 40, 0), V(0, 0, 1), 1.6),
    Part.Circle(V(38, 40, 0), V(0, 0, 1), 1.6),
    Part.Circle(V(0, 40, 0), V(0, 0, 1), 1.6),
    Part.Circle(V(-38, -40, 0), V(0, 0, 1), 1.6),
    Part.Circle(V(0, -40, 0), V(0, 0, 1), 1.6),
    Part.Circle(V(38, -40, 0), V(0, 0, 1), 1.6),
    Part.Circle(V(-71, 65, 0), V(0, 0, 1), 1.6),
    Part.Circle(V(71, 65, 0), V(0, 0, 1), 1.6),
    Part.Circle(V(71, -80, 0), V(0, 0, 1), 1.6),
    Part.Circle(V(-71, -80, 0), V(0, 0, 1), 1.6),
], False)
sketch6.addConstraint([
    Sketcher.Constraint("Equal", 0, 1),
    Sketcher.Constraint("Equal", 1, 2),
    Sketcher.Constraint("Equal", 2, 3),
    Sketcher.Constraint("Equal", 3, 4),
    Sketcher.Constraint("Equal", 4, 5),
    Sketcher.Constraint("Equal", 5, 6),
    Sketcher.Constraint("Equal", 6, 7),
    Sketcher.Constraint("Equal", 7, 8),
    Sketcher.Constraint("Equal", 8, 9),
    Sketcher.Constraint("Symmetric", 1, 3, 3, 3, -1, 1),
    Sketcher.Constraint("Symmetric", 2, 3, 4, 3, -1, 1),
    Sketcher.Constraint("Symmetric", 0, 3, 5, 3, -1, 1),
    Sketcher.Constraint("Symmetric", 0, 3, 1, 3, -2),
    Sketcher.Constraint("Symmetric", 6, 3, 7, 3, -2),
    Sketcher.Constraint("Symmetric", 8, 3, 9, 3, -2),
    Sketcher.Constraint("PointOnObject", 2, 3, -2),
    Sketcher.Constraint("Horizontal", 1, 3, 2, 3),
    Sketcher.Constraint("Vertical", 7, 3, 8, 3),
    Sketcher.Constraint("Diameter", 0, 3.2),
    Sketcher.Constraint("DistanceX", 0, 3, -1, 1, 38.0),
    Sketcher.Constraint("DistanceY", -1, 1, 0, 3, 40.0),
    Sketcher.Constraint("DistanceX", 6, 3, -1, 1, 71.0),
    Sketcher.Constraint("DistanceY", -1, 1, 6, 3, 65.0),
    Sketcher.Constraint("DistanceY", 8, 3, -1, 1, 80.0),
])
pocket3 = doc.addObject("PartDesign::Pocket", "Pocket002")
body.addObject(pocket3)
pocket3.Profile = sketch6
pocket3.Length = 10
pocket3.Reversed = True

sketch7 = doc.addObject("Sketcher::SketchObject", "Sketch006")
body.addObject(sketch7)
sketch7.AttachmentSupport = (doc.XZ_Plane, [""])
sketch7.MapMode = "FlatFace"
sketch7.AttachmentOffset = App.Placement(V(0, 0, 3), App.Rotation())
sketch7.addGeometry([
    Part.LineSegment(V(-75, 80, 0), V(-75, 72, 0)),
    Part.LineSegment(V(-75, 72, 0), V(-57, 72, 0)),
    Part.LineSegment(V(-57, 72, 0), V(-57, 80, 0)),
    Part.LineSegment(V(-57, 80, 0), V(-75, 80, 0)),
    Part.LineSegment(V(52, 80, 0), V(52, 72, 0)),
    Part.LineSegment(V(52, 72, 0), V(75, 72, 0)),
    Part.LineSegment(V(75, 72, 0), V(75, 80, 0)),
    Part.LineSegment(V(75, 80, 0), V(52, 80, 0)),
    Part.LineSegment(V(-75, 54, 0), V(-75, 46, 0)),
    Part.LineSegment(V(-75, 46, 0), V(-57, 46, 0)),
    Part.LineSegment(V(-57, 46, 0), V(-57, 54, 0)),
    Part.LineSegment(V(-57, 54, 0), V(-75, 54, 0)),
    Part.LineSegment(V(52, 54, 0), V(52, 46, 0)),
    Part.LineSegment(V(52, 46, 0), V(75, 46, 0)),
    Part.LineSegment(V(75, 46, 0), V(75, 54, 0)),
    Part.LineSegment(V(75, 54, 0), V(52, 54, 0)),
    Part.LineSegment(V(-75, 23, 0), V(-75, 15, 0)),
    Part.LineSegment(V(-75, 15, 0), V(-57, 15, 0)),
    Part.LineSegment(V(-57, 15, 0), V(-57, 23, 0)),
    Part.LineSegment(V(-57, 23, 0), V(-75, 23, 0)),
    Part.LineSegment(V(52, 23, 0), V(52, 15, 0)),
    Part.LineSegment(V(52, 15, 0), V(75, 15, 0)),
    Part.LineSegment(V(75, 15, 0), V(75, 23, 0)),
    Part.LineSegment(V(75, 23, 0), V(52, 23, 0)),
    Part.LineSegment(V(-75, -7, 0), V(-75, -15, 0)),
    Part.LineSegment(V(-75, -15, 0), V(-57, -15, 0)),
    Part.LineSegment(V(-57, -15, 0), V(-57, -7, 0)),
    Part.LineSegment(V(-57, -7, 0), V(-75, -7, 0)),
    Part.LineSegment(V(52, -7, 0), V(52, -15, 0)),
    Part.LineSegment(V(52, -15, 0), V(75, -15, 0)),
    Part.LineSegment(V(75, -15, 0), V(75, -7, 0)),
    Part.LineSegment(V(75, -7, 0), V(52, -7, 0)),
    Part.LineSegment(V(-75, -68, 0), V(-75, -76, 0)),
    Part.LineSegment(V(-75, -76, 0), V(-57, -76, 0)),
    Part.LineSegment(V(-57, -76, 0), V(-57, -68, 0)),
    Part.LineSegment(V(-57, -68, 0), V(-75, -68, 0)),
    Part.LineSegment(V(52, -68, 0), V(52, -76, 0)),
    Part.LineSegment(V(52, -76, 0), V(75, -76, 0)),
    Part.LineSegment(V(75, -76, 0), V(75, -68, 0)),
    Part.LineSegment(V(75, -68, 0), V(52, -68, 0)),
], False)
sketch7.addConstraint([
    Sketcher.Constraint("Coincident", 0, 2, 1, 1),
    Sketcher.Constraint("Coincident", 1, 2, 2, 1),
    Sketcher.Constraint("Coincident", 2, 2, 3, 1),
    Sketcher.Constraint("Coincident", 3, 2, 0, 1),
    Sketcher.Constraint("Coincident", 4, 2, 5, 1),
    Sketcher.Constraint("Coincident", 5, 2, 6, 1),
    Sketcher.Constraint("Coincident", 6, 2, 7, 1),
    Sketcher.Constraint("Coincident", 7, 2, 4, 1),
    Sketcher.Constraint("Coincident", 8, 2, 9, 1),
    Sketcher.Constraint("Coincident", 9, 2, 10, 1),
    Sketcher.Constraint("Coincident", 10, 2, 11, 1),
    Sketcher.Constraint("Coincident", 11, 2, 8, 1),
    Sketcher.Constraint("Coincident", 12, 2, 13, 1),
    Sketcher.Constraint("Coincident", 13, 2, 14, 1),
    Sketcher.Constraint("Coincident", 14, 2, 15, 1),
    Sketcher.Constraint("Coincident", 15, 2, 12, 1),
    Sketcher.Constraint("Coincident", 16, 2, 17, 1),
    Sketcher.Constraint("Coincident", 17, 2, 18, 1),
    Sketcher.Constraint("Coincident", 18, 2, 19, 1),
    Sketcher.Constraint("Coincident", 19, 2, 16, 1),
    Sketcher.Constraint("Coincident", 20, 2, 21, 1),
    Sketcher.Constraint("Coincident", 21, 2, 22, 1),
    Sketcher.Constraint("Coincident", 22, 2, 23, 1),
    Sketcher.Constraint("Coincident", 23, 2, 20, 1),
    Sketcher.Constraint("Coincident", 24, 2, 25, 1),
    Sketcher.Constraint("Coincident", 25, 2, 26, 1),
    Sketcher.Constraint("Coincident", 26, 2, 27, 1),
    Sketcher.Constraint("Coincident", 27, 2, 24, 1),
    Sketcher.Constraint("Coincident", 28, 2, 29, 1),
    Sketcher.Constraint("Coincident", 29, 2, 30, 1),
    Sketcher.Constraint("Coincident", 30, 2, 31, 1),
    Sketcher.Constraint("Coincident", 31, 2, 28, 1),
    Sketcher.Constraint("Coincident", 32, 2, 33, 1),
    Sketcher.Constraint("Coincident", 33, 2, 34, 1),
    Sketcher.Constraint("Coincident", 34, 2, 35, 1),
    Sketcher.Constraint("Coincident", 35, 2, 32, 1),
    Sketcher.Constraint("Coincident", 36, 2, 37, 1),
    Sketcher.Constraint("Coincident", 37, 2, 38, 1),
    Sketcher.Constraint("Coincident", 38, 2, 39, 1),
    Sketcher.Constraint("Coincident", 39, 2, 36, 1),
    Sketcher.Constraint("Vertical", 0),
    Sketcher.Constraint("Horizontal", 1),
    Sketcher.Constraint("Vertical", 2),
    Sketcher.Constraint("Horizontal", 3),
    Sketcher.Constraint("Vertical", 4),
    Sketcher.Constraint("Horizontal", 5),
    Sketcher.Constraint("Vertical", 6),
    Sketcher.Constraint("Horizontal", 7),
    Sketcher.Constraint("Vertical", 8),
    Sketcher.Constraint("Horizontal", 9),
    Sketcher.Constraint("Vertical", 10),
    Sketcher.Constraint("Horizontal", 11),
    Sketcher.Constraint("Vertical", 12),
    Sketcher.Constraint("Horizontal", 13),
    Sketcher.Constraint("Vertical", 14),
    Sketcher.Constraint("Horizontal", 15),
    Sketcher.Constraint("Vertical", 16),
    Sketcher.Constraint("Horizontal", 17),
    Sketcher.Constraint("Vertical", 18),
    Sketcher.Constraint("Horizontal", 19),
    Sketcher.Constraint("Vertical", 20),
    Sketcher.Constraint("Horizontal", 21),
    Sketcher.Constraint("Vertical", 22),
    Sketcher.Constraint("Horizontal", 23),
    Sketcher.Constraint("Vertical", 24),
    Sketcher.Constraint("Horizontal", 25),
    Sketcher.Constraint("Vertical", 26),
    Sketcher.Constraint("Horizontal", 27),
    Sketcher.Constraint("Vertical", 28),
    Sketcher.Constraint("Horizontal", 29),
    Sketcher.Constraint("Vertical", 30),
    Sketcher.Constraint("Horizontal", 31),
    Sketcher.Constraint("Vertical", 32),
    Sketcher.Constraint("Horizontal", 33),
    Sketcher.Constraint("Vertical", 34),
    Sketcher.Constraint("Horizontal", 35),
    Sketcher.Constraint("Vertical", 36),
    Sketcher.Constraint("Horizontal", 37),
    Sketcher.Constraint("Vertical", 38),
    Sketcher.Constraint("Horizontal", 39),
    Sketcher.Constraint("Symmetric", 21, 2, 24, 2, -1, 1),
    Sketcher.Constraint("Symmetric", 16, 2, 29, 2, -1, 1),
    Sketcher.Constraint("Symmetric", 0, 2, 5, 2, -2),
    Sketcher.Constraint("Symmetric", 8, 2, 13, 2, -2),
    Sketcher.Constraint("Symmetric", 16, 2, 21, 2, -2),
    Sketcher.Constraint("Symmetric", 32, 2, 37, 2, -2),
    Sketcher.Constraint("Horizontal", 3, 2, 6, 2),
    Sketcher.Constraint("Horizontal", 11, 2, 14, 2),
    Sketcher.Constraint("Horizontal", 19, 2, 22, 2),
    Sketcher.Constraint("Horizontal", 27, 2, 30, 2),
    Sketcher.Constraint("Horizontal", 35, 2, 38, 2),
    Sketcher.Constraint("Vertical", 3, 2, 8, 2),
    Sketcher.Constraint("Vertical", 2, 2, 9, 2),
    Sketcher.Constraint("Vertical", 7, 2, 12, 2),
    Sketcher.Constraint("Vertical", 11, 2, 16, 2),
    Sketcher.Constraint("Vertical", 10, 2, 17, 2),
    Sketcher.Constraint("Vertical", 15, 2, 20, 2),
    Sketcher.Constraint("Vertical", 18, 2, 25, 2),
    Sketcher.Constraint("Vertical", 23, 2, 28, 2),
    Sketcher.Constraint("Vertical", 27, 2, 32, 2),
    Sketcher.Constraint("Vertical", 26, 2, 33, 2),
    Sketcher.Constraint("Vertical", 31, 2, 36, 2),
    Sketcher.Constraint("Equal", 6, 8),
    Sketcher.Constraint("Equal", 14, 16),
    Sketcher.Constraint("Equal", 22, 24),
    Sketcher.Constraint("Equal", 30, 32),
    Sketcher.Constraint("DistanceY", 0, 2, 0, 1, 8.0),
    Sketcher.Constraint("DistanceX", 0, 2, -1, 1, 75.0),
    Sketcher.Constraint("DistanceY", -1, 1, 8, 2, 46.0),
    Sketcher.Constraint("DistanceY", -1, 1, 16, 2, 15.0),
    Sketcher.Constraint("DistanceY", -1, 1, 0, 2, 72.5),
    Sketcher.Constraint("DistanceY", 32, 2, -1, 1, 75.5),
    Sketcher.Constraint("DistanceX", 5, 1, 5, 2, 22.845071),
    Sketcher.Constraint("DistanceX", 1, 1, 1, 2, 17.667286),
])
pocket4 = doc.addObject("PartDesign::Pocket", "Pocket003")
body.addObject(pocket4)
pocket4.Profile = sketch7
pocket4.Length = 3
doc.recompute()

fillet = doc.addObject("PartDesign::Fillet", "Fillet")
body.addObject(fillet)
fillet.Base = (pocket4, edges_at(pocket4, [
    (75, -0.5, 90),
    (-75, -0.5, 90),
    (-75, -0.5, -90),
    (75, -0.5, -90),
]))
fillet.Radius = 4

doc.recompute()
